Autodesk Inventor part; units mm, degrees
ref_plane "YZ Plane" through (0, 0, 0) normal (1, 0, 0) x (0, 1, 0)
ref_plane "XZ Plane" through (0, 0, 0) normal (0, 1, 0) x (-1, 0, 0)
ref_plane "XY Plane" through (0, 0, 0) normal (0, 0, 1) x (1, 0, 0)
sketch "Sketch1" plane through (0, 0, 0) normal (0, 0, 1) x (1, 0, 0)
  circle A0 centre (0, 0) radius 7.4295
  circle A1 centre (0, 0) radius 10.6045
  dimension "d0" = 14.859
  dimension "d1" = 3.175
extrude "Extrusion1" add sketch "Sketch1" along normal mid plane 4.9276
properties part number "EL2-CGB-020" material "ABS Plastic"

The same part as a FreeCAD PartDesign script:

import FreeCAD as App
import Part
import Sketcher
Q = App.Units.Quantity

doc = App.newDocument("Part")
body = doc.addObject("PartDesign::Body", "Body")

sketch1 = doc.addObject("Sketcher::SketchObject", "Sketch")
body.addObject(sketch1)
sketch1.AttachmentSupport = (doc.XY_Plane, [""])
sketch1.MapMode = "FlatFace"
sketch1.addGeometry(Part.Circle(App.Vector(0, 0, 0), App.Vector(0, 0, 1), 10.6045), False)
sketch1.addGeometry(Part.Circle(App.Vector(0, 0, 0), App.Vector(0, 0, 1), 7.4295), False)
sketch1.addConstraint(Sketcher.Constraint("Coincident", 0, 3, -1, 1))
sketch1.addConstraint(Sketcher.Constraint("Coincident", 1, 3, -1, 1))
sketch1.addConstraint(Sketcher.Constraint("Diameter", 1, Q("0.585 in")))
sketch1.addConstraint(Sketcher.Constraint("Diameter", 0, Q("0.835 in")))
pad1 = doc.addObject("PartDesign::Pad", "Pad")
body.addObject(pad1)
pad1.Profile = sketch1
pad1.Length = Q("0.194 in")
pad1.Midplane = True

doc.recompute()
